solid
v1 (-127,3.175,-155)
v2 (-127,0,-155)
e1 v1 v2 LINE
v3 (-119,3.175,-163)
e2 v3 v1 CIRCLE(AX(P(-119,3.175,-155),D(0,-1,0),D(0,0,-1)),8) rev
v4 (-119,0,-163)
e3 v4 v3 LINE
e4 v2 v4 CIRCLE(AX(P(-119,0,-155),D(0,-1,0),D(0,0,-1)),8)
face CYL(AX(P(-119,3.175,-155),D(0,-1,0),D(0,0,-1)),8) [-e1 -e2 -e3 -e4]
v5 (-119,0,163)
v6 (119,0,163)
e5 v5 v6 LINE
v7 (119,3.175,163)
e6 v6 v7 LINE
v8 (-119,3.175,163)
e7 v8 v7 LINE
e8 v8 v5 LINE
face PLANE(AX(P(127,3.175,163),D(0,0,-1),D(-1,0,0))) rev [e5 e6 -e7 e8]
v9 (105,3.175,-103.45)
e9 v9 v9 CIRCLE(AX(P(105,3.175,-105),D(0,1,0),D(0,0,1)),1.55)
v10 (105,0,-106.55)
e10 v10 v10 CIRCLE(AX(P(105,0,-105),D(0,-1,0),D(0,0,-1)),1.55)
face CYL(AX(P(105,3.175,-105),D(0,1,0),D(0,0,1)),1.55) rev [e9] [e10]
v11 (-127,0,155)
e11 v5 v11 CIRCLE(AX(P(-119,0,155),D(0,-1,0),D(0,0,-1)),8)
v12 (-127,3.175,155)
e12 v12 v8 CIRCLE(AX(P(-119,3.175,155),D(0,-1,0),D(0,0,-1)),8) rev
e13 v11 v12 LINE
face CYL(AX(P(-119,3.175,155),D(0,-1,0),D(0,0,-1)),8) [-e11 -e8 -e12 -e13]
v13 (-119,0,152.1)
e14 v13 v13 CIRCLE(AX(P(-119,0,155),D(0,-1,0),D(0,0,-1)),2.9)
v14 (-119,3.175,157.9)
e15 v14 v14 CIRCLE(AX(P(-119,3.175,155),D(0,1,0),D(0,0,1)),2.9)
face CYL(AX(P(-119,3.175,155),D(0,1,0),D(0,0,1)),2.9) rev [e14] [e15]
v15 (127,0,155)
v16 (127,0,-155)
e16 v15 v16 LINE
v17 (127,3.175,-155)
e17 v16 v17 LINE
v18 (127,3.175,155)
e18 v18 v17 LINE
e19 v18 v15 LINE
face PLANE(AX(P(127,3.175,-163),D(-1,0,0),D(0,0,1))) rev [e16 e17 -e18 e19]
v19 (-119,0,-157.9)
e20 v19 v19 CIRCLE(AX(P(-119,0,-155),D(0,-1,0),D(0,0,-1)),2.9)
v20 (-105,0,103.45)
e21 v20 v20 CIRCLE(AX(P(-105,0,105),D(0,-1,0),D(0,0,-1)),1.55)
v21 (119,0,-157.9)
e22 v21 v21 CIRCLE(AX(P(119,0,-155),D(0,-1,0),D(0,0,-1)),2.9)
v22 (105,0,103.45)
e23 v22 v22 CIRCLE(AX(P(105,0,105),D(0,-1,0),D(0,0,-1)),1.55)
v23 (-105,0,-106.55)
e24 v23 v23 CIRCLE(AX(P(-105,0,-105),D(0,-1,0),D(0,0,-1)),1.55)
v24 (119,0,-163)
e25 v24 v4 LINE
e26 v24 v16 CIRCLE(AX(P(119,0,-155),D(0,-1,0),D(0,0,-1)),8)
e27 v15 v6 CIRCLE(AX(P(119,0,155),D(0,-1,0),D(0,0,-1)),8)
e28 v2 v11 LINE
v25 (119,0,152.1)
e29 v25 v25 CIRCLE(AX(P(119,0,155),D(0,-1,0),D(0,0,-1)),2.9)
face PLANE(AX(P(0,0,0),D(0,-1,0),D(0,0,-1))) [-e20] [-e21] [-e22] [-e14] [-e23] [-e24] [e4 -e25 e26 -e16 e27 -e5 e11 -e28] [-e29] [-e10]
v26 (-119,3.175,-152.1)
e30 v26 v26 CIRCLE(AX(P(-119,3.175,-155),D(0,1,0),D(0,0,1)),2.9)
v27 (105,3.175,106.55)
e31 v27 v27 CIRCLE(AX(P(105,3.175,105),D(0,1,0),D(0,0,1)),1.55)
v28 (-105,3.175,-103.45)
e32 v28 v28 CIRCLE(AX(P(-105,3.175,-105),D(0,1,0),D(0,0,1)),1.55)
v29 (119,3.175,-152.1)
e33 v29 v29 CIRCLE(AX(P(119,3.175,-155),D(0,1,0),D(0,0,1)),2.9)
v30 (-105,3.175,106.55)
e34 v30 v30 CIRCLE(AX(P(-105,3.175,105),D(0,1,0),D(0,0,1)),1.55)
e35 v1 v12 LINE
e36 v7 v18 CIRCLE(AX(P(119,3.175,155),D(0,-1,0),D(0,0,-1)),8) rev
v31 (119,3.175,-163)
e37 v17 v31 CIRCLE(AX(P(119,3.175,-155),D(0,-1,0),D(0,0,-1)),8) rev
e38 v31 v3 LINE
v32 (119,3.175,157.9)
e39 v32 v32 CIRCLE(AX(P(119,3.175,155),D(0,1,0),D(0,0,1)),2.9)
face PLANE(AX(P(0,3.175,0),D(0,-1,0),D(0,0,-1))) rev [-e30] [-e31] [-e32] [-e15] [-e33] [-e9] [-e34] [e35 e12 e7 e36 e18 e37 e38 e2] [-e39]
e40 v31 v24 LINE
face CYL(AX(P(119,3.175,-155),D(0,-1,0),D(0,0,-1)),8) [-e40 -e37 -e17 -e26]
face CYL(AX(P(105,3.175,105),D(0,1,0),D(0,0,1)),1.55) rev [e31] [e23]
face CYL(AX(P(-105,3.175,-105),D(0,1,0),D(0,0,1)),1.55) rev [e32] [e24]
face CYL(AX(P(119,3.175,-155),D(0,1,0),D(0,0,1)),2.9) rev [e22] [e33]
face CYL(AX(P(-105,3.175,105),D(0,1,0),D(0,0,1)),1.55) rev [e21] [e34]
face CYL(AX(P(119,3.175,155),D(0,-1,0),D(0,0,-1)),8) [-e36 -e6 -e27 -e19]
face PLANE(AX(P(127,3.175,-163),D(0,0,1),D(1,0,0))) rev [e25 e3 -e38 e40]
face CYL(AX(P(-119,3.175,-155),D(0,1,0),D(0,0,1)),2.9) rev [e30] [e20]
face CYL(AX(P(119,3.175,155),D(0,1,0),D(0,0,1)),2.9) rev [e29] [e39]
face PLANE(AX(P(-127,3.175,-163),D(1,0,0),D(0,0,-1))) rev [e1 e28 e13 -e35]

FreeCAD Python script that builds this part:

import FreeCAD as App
import Part
import Sketcher


def edges_at(feature, points):
    """Names of the edges that pass closest to the given points."""
    edges = feature.Shape.Edges
    near = lambda p: min(range(len(edges)), key=lambda i: edges[i].distToShape(Part.Vertex(*p))[0])
    return sorted({f"Edge{near(p) + 1}" for p in points})


def add_polygon(sketch, points):
    """Adds a closed chain of lines whose ends are joined by coincident constraints."""
    first, n = sketch.GeometryCount, len(points)
    for a, b in zip(points, points[1:] + points[:1]):
        sketch.addGeometry(Part.LineSegment(App.Vector(*a, 0), App.Vector(*b, 0)), False)
    for i in range(n):
        sketch.addConstraint(Sketcher.Constraint("Coincident", first + i, 2, first + (i + 1) % n, 1))

doc = App.newDocument("Part")
body = doc.addObject("PartDesign::Body", "Body")

# Sketch on XZ plane
sketch1 = body.newObject("Sketcher::SketchObject", "Sketch")
sketch1.AttachmentSupport = (doc.getObject("XZ_Plane"), [""])
sketch1.MapMode = "FlatFace"
add_polygon(sketch1, [(-127, -163), (-127, 163), (127, 163), (127, -163)])  # lines 0-3
sketch1.addConstraint(Sketcher.Constraint("Vertical", 0))
sketch1.addConstraint(Sketcher.Constraint("Horizontal", 1))
sketch1.addConstraint(Sketcher.Constraint("Vertical", 2))
sketch1.addConstraint(Sketcher.Constraint("Horizontal", 3))
sketch1.addConstraint(Sketcher.Constraint("Symmetric", 0, 2, 2, 2, -1, 1))
sketch1.addConstraint(Sketcher.Constraint("DistanceX", 1, 1, 1, 2, 254.0))
sketch1.addConstraint(Sketcher.Constraint("DistanceY", 0, 1, 0, 2, 326.0))
pad1 = body.newObject("PartDesign::Pad", "Pad")
pad1.Profile = sketch1
pad1.Length = 3.175
pad1.Reversed = True

# Sketch on XZ plane
sketch2 = body.newObject("Sketcher::SketchObject", "Sketch001")
sketch2.AttachmentSupport = (doc.getObject("XZ_Plane"), [""])
sketch2.MapMode = "FlatFace"
sketch2.AttachmentOffset = App.Placement(App.Vector(0, 0, -3.175), App.Rotation())
sketch2.addGeometry(Part.Circle(App.Vector(-105, 105, 0), App.Vector(0, 0, 1), 1.6), False)
sketch2.addGeometry(Part.Circle(App.Vector(-105, -105, 0), App.Vector(0, 0, 1), 1.6), False)
sketch2.addGeometry(Part.Circle(App.Vector(105, -105, 0), App.Vector(0, 0, 1), 1.6), False)
sketch2.addGeometry(Part.Circle(App.Vector(105, 105, 0), App.Vector(0, 0, 1), 1.6), False)
sketch2.addConstraint(Sketcher.Constraint("Equal", 0, 1))
sketch2.addConstraint(Sketcher.Constraint("Equal", 1, 2))
sketch2.addConstraint(Sketcher.Constraint("Equal", 2, 3))
sketch2.addConstraint(Sketcher.Constraint("Symmetric", 0, 3, 2, 3, -1, 1))
sketch2.addConstraint(Sketcher.Constraint("Symmetric", 1, 3, 3, 3, -1, 1))
sketch2.addConstraint(Sketcher.Constraint("Symmetric", 1, 3, 2, 3, -2))
sketch2.addConstraint(Sketcher.Constraint("Diameter", 0, 3.1))
sketch2.addConstraint(Sketcher.Constraint("DistanceX", 0, 3, -1, 1, 105.0))
sketch2.addConstraint(Sketcher.Constraint("DistanceY", -1, 1, 0, 3, 105.0))
doc.recompute()
hole = body.newObject("PartDesign::Hole", "Hole")
hole.Profile = sketch2
hole.ThreadType = "None"
hole.Diameter = 3.1
hole.DepthType = "Dimension"
hole.Depth = 11.938
hole.DrillPoint = "Angled"
hole.DrillPointAngle = 118
hole.Reversed = True

# Sketch on XZ plane
sketch3 = body.newObject("Sketcher::SketchObject", "Sketch002")
sketch3.AttachmentSupport = (doc.getObject("XZ_Plane"), [""])
sketch3.MapMode = "FlatFace"
sketch3.AttachmentOffset = App.Placement(App.Vector(0, 0, -3.175), App.Rotation())
sketch3.addGeometry(Part.Circle(App.Vector(-119, -155, 0), App.Vector(0, 0, 1), 2.9), False)
sketch3.addGeometry(Part.Circle(App.Vector(119, -155, 0), App.Vector(0, 0, 1), 2.9), False)
sketch3.addGeometry(Part.Circle(App.Vector(119, 155, 0), App.Vector(0, 0, 1), 2.9), False)
sketch3.addGeometry(Part.Circle(App.Vector(-119, 155, 0), App.Vector(0, 0, 1), 2.9), False)
sketch3.addConstraint(Sketcher.Constraint("Equal", 0, 1))
sketch3.addConstraint(Sketcher.Constraint("Equal", 1, 2))
sketch3.addConstraint(Sketcher.Constraint("Equal", 2, 3))
sketch3.addConstraint(Sketcher.Constraint("Symmetric", 0, 3, 2, 3, -1, 1))
sketch3.addConstraint(Sketcher.Constraint("Symmetric", 1, 3, 3, 3, -1, 1))
sketch3.addConstraint(Sketcher.Constraint("Symmetric", 0, 3, 1, 3, -2))
sketch3.addConstraint(Sketcher.Constraint("Diameter", 0, 5.8))
sketch3.addConstraint(Sketcher.Constraint("DistanceX", 0, 3, -1, 1, 119.0))
sketch3.addConstraint(Sketcher.Constraint("DistanceY", 0, 3, -1, 1, 155.0))
doc.recompute()
hole2 = body.newObject("PartDesign::Hole", "Hole001")
hole2.Profile = sketch3
hole2.ThreadType = "None"
hole2.Diameter = 5.8
hole2.DepthType = "Dimension"
hole2.Depth = 11.938
hole2.DrillPoint = "Angled"
hole2.DrillPointAngle = 118
hole2.Reversed = True
doc.recompute()

fillet = body.newObject("PartDesign::Fillet", "Fillet")
fillet.Base = (hole2, edges_at(hole2, [
    (-127, 1.587, -163),
    (127, 1.587, -163),
    (127, 1.587, 163),
    (-127, 1.587, 163),
]))
fillet.Radius = 8

doc.recompute()
